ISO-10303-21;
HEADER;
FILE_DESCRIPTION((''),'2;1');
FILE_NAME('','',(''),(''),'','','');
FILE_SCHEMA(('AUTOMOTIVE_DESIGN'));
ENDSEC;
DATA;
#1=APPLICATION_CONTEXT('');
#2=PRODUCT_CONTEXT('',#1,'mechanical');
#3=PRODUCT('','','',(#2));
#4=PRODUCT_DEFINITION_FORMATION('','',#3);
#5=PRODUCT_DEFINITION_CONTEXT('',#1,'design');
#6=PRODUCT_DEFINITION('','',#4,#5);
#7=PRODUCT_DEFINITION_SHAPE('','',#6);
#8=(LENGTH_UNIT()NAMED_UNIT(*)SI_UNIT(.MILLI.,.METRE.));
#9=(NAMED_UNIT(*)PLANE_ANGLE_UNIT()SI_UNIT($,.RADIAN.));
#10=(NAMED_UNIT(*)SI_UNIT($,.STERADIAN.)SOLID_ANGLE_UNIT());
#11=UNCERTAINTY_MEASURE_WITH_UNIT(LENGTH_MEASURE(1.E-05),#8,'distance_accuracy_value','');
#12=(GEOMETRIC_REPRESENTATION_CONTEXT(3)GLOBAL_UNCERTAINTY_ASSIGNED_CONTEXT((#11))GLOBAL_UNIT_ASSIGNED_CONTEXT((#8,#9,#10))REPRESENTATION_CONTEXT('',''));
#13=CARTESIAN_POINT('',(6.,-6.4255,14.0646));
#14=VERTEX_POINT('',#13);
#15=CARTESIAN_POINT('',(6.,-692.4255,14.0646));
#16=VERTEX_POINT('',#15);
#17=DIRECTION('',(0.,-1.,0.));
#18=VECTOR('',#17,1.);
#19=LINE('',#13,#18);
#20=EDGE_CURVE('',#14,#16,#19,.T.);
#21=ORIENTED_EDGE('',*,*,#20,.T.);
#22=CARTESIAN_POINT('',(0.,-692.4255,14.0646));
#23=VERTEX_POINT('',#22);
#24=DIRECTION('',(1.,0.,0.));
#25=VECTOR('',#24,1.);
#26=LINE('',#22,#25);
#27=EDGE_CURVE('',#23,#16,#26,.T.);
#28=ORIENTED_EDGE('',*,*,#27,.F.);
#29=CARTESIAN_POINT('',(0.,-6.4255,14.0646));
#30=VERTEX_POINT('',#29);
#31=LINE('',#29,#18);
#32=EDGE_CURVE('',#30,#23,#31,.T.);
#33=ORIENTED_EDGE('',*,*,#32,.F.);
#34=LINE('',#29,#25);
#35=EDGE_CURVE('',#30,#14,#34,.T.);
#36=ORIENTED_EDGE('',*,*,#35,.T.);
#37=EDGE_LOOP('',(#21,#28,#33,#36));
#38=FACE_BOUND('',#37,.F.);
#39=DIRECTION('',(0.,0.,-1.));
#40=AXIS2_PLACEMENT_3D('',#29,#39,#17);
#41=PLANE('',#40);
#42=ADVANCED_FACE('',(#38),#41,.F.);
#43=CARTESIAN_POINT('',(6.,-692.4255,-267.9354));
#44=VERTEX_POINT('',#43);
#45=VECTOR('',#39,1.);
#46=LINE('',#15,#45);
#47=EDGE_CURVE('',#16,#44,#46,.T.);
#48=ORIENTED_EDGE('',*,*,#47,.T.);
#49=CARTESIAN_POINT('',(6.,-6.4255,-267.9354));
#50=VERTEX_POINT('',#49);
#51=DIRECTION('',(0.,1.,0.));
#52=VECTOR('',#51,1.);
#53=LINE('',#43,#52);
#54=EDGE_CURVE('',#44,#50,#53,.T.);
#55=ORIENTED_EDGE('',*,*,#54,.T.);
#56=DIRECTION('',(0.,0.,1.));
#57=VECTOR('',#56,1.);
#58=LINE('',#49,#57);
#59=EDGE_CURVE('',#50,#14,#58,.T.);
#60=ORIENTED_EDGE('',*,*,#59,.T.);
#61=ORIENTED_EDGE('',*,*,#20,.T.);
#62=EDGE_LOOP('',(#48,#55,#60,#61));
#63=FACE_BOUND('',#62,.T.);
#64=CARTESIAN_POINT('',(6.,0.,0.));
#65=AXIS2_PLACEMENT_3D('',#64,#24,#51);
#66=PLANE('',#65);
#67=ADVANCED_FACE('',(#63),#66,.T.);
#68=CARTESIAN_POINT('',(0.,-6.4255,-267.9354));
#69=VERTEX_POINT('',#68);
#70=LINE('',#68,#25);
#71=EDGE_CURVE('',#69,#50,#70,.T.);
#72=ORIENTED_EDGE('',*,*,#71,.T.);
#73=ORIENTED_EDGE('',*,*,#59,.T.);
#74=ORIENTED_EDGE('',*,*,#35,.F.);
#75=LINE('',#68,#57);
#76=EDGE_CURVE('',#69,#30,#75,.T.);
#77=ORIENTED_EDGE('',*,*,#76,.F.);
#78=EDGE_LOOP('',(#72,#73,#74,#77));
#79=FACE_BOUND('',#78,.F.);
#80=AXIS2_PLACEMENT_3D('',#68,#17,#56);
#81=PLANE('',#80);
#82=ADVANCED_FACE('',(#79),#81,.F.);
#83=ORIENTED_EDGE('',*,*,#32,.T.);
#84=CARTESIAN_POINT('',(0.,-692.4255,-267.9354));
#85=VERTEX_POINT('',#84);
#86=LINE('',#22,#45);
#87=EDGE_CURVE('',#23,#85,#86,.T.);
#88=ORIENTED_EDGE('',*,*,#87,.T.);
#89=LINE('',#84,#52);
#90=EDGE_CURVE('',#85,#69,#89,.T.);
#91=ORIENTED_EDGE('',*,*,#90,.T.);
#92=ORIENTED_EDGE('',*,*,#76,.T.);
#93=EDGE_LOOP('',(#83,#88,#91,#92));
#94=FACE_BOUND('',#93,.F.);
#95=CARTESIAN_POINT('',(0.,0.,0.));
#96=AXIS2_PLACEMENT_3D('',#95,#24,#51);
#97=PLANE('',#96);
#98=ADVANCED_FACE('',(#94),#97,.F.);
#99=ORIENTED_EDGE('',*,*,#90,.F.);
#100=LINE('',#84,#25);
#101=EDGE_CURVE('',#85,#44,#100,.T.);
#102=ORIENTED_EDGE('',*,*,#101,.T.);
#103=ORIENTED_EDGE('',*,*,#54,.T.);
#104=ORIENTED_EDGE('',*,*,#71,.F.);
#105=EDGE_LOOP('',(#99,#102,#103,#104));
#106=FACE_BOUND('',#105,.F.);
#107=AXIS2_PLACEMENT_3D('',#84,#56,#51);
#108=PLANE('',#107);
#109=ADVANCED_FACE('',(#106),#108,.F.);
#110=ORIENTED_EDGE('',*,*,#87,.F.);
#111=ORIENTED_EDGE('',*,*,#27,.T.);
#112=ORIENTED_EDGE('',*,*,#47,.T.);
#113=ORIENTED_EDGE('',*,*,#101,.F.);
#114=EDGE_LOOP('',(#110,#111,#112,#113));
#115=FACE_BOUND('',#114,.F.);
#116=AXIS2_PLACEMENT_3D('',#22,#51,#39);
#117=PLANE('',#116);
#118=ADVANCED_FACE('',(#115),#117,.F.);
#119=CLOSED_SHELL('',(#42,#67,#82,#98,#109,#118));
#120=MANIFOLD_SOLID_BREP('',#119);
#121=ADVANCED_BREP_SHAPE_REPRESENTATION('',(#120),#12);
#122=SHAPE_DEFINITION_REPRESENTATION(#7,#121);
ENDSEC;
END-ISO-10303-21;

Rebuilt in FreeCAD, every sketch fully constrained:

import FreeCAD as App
import Part
import Sketcher

V = App.Vector
Q = App.Units.Quantity

doc = App.newDocument("Part")
body = doc.addObject("PartDesign::Body", "Body")

# Sketch on YZ plane
sketch1 = doc.addObject("Sketcher::SketchObject", "Sketch")
body.addObject(sketch1)
sketch1.AttachmentSupport = (doc.YZ_Plane, [""])
sketch1.MapMode = "FlatFace"
sketch1.addGeometry([
    Part.LineSegment(V(-6, -268, 0), V(-6, 14, 0)),
    Part.LineSegment(V(-6, 14, 0), V(-692, 14, 0)),
    Part.LineSegment(V(-692, 14, 0), V(-692, -268, 0)),
    Part.LineSegment(V(-692, -268, 0), V(-6, -268, 0)),
], False)
sketch1.addConstraint([
    Sketcher.Constraint("Coincident", 0, 2, 1, 1),
    Sketcher.Constraint("Coincident", 1, 2, 2, 1),
    Sketcher.Constraint("Coincident", 2, 2, 3, 1),
    Sketcher.Constraint("Coincident", 3, 2, 0, 1),
    Sketcher.Constraint("Vertical", 0),
    Sketcher.Constraint("Horizontal", 1),
    Sketcher.Constraint("Vertical", 2),
    Sketcher.Constraint("Horizontal", 3),
    Sketcher.Constraint("DistanceX", 1, 2, 1, 1, Q("686 mm")),
    Sketcher.Constraint("DistanceY", 0, 1, 0, 2, Q("282 mm")),
    Sketcher.Constraint("DistanceX", 0, 2, -1, 1, Q("6.4255 mm")),
    Sketcher.Constraint("DistanceY", -1, 1, 0, 2, Q("14.0646 mm")),
])
pad1 = doc.addObject("PartDesign::Pad", "Pad")
body.addObject(pad1)
pad1.Profile = sketch1
pad1.Length = 6

doc.recompute()
